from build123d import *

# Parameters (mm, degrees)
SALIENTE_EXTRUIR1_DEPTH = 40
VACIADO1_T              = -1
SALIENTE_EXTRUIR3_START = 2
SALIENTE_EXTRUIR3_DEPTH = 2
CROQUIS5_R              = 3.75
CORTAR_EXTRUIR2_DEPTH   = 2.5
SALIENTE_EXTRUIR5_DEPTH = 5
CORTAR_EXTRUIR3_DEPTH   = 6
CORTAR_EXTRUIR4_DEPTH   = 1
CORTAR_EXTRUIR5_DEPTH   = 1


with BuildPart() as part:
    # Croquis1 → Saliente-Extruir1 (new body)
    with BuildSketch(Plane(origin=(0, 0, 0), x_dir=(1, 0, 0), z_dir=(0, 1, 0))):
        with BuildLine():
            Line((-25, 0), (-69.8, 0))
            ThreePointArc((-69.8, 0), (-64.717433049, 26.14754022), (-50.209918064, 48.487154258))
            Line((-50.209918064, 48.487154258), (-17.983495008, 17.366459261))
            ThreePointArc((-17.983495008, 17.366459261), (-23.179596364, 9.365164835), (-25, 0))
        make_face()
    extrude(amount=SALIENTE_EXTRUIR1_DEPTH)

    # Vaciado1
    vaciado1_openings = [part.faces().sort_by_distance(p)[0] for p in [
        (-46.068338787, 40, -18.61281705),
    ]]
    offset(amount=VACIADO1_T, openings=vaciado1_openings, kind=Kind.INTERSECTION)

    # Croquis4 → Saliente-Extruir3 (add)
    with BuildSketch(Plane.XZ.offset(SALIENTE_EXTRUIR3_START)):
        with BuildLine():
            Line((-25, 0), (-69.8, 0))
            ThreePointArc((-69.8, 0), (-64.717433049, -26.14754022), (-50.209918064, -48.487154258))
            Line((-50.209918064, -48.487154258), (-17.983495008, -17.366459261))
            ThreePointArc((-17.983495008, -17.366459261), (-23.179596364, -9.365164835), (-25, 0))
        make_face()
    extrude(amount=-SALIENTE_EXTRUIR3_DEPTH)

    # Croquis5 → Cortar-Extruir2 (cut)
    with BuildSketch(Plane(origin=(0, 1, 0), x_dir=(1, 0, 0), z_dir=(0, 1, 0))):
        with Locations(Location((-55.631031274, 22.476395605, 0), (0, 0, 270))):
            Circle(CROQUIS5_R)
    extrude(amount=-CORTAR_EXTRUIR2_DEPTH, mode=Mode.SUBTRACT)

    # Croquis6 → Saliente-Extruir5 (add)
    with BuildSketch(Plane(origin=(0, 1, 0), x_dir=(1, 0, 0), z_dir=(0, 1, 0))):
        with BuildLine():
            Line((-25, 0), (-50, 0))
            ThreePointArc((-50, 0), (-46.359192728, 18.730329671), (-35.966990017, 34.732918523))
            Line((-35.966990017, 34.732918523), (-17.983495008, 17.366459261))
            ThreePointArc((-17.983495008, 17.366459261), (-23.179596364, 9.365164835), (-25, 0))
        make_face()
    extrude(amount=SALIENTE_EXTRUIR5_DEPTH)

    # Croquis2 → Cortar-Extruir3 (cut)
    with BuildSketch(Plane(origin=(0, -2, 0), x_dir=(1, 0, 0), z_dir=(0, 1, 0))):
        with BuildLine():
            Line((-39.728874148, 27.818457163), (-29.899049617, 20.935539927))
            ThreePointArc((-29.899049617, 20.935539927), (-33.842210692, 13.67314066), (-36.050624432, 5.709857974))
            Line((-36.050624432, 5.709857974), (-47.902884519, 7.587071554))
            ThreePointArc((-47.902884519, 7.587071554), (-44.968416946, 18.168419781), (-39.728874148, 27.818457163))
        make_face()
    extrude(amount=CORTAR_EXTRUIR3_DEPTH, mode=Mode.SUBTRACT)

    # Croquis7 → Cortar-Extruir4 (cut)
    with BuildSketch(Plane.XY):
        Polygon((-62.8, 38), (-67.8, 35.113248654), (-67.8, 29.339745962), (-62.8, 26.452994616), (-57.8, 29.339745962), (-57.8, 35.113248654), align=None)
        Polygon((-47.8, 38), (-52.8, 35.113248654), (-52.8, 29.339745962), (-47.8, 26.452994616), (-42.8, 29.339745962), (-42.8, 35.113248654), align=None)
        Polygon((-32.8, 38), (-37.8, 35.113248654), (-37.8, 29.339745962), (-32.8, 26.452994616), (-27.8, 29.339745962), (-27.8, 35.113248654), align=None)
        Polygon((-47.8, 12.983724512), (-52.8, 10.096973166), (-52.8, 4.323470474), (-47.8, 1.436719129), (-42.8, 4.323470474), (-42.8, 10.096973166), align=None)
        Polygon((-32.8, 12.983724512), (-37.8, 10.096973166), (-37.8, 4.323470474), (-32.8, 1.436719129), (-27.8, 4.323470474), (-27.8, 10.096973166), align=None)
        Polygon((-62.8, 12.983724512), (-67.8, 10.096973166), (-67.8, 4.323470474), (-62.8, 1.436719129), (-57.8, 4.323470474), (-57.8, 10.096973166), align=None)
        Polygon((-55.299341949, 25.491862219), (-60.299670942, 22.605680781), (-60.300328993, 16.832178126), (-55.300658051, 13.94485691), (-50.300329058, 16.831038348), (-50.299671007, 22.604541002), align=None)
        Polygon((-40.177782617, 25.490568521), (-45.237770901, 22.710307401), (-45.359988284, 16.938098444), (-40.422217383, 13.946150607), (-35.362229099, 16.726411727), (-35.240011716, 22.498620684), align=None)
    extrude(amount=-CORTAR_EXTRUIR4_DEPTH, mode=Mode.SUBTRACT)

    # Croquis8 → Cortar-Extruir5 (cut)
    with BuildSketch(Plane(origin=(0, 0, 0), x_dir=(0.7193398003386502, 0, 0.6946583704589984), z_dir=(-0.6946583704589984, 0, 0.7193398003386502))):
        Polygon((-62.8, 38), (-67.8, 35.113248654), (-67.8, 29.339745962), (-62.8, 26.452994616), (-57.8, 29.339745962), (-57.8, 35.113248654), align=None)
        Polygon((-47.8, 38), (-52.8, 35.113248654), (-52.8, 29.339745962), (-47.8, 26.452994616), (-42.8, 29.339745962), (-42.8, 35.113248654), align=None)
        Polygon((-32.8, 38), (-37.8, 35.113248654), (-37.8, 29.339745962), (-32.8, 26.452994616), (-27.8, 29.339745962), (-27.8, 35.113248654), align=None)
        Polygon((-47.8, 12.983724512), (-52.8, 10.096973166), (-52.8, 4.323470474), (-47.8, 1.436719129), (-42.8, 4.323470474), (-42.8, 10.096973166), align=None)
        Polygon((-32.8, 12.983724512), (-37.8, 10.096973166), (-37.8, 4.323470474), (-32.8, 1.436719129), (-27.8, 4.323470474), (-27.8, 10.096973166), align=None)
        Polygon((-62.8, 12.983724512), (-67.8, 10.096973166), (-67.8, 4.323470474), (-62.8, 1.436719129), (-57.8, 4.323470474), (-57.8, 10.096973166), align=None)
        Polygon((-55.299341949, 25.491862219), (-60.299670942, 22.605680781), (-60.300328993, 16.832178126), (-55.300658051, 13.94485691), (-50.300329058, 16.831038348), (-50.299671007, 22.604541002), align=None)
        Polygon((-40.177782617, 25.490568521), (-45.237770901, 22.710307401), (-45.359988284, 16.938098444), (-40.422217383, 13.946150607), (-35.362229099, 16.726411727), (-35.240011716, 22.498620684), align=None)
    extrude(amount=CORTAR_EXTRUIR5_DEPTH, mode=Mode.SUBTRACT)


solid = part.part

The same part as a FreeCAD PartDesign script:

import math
import FreeCAD as App
import Part
import Sketcher
Q = App.Units.Quantity


def faces_at(feature, points):
    """Names of the faces that lie closest to the given points."""
    faces = feature.Shape.Faces
    near = lambda p: min(range(len(faces)), key=lambda i: faces[i].distToShape(Part.Vertex(*p))[0])
    return sorted({f"Face{near(p) + 1}" for p in points})


def add_polygon(sketch, points):
    """Adds a closed chain of lines whose ends are joined by coincident constraints."""
    first, n = sketch.GeometryCount, len(points)
    for a, b in zip(points, points[1:] + points[:1]):
        sketch.addGeometry(Part.LineSegment(App.Vector(*a, 0), App.Vector(*b, 0)), False)
    for i in range(n):
        sketch.addConstraint(Sketcher.Constraint("Coincident", first + i, 2, first + (i + 1) % n, 1))

doc = App.newDocument("Part")
body = doc.addObject("PartDesign::Body", "Body")

# Sketch on XZ plane
sketch1 = body.newObject("Sketcher::SketchObject", "Sketch")
sketch1.AttachmentSupport = (doc.getObject("XZ_Plane"), [""])
sketch1.MapMode = "FlatFace"
sketch1.addGeometry(Part.LineSegment(App.Vector(-70, 0, 0), App.Vector(-25, 0, 0)), False)
sketch1.addGeometry(Part.ArcOfCircle(Part.Circle(App.Vector(0, 0, 0), App.Vector(0, 0, 1), 25), math.radians(-180), math.radians(-136)), False)
sketch1.addGeometry(Part.LineSegment(App.Vector(-18, -17, 0), App.Vector(-50, -48, 0)), False)
sketch1.addGeometry(Part.ArcOfCircle(Part.Circle(App.Vector(0, 0, 0), App.Vector(0, 0, 1), 70), math.radians(180), math.radians(224)), False)
sketch1.addConstraint(Sketcher.Constraint("Coincident", 0, 2, 1, 1))
sketch1.addConstraint(Sketcher.Constraint("Coincident", 1, 2, 2, 1))
sketch1.addConstraint(Sketcher.Constraint("Coincident", 2, 2, 3, 2))
sketch1.addConstraint(Sketcher.Constraint("Coincident", 3, 1, 0, 1))
sketch1.addConstraint(Sketcher.Constraint("Horizontal", 0))
sketch1.addConstraint(Sketcher.Constraint("Coincident", 1, 3, -1, 1))
sketch1.addConstraint(Sketcher.Constraint("Coincident", 3, 3, -1, 1))
sketch1.addConstraint(Sketcher.Constraint("PointOnObject", 0, 2, -1))
sketch1.addConstraint(Sketcher.Constraint("Radius", 1, 25.0))
sketch1.addConstraint(Sketcher.Constraint("Radius", 3, 69.8))
sketch1.addConstraint(Sketcher.Constraint("Angle", 2, Q("-136 deg")))
sketch1.addConstraint(Sketcher.Constraint("DistanceY", 1, 2, -1, 1, 17.366459))
pad1 = body.newObject("PartDesign::Pad", "Pad")
pad1.Profile = sketch1
pad1.Length = 40
pad1.Reversed = True
doc.recompute()

thickness = body.newObject("PartDesign::Thickness", "Thickness")
thickness.Base = (pad1, faces_at(pad1, [(-43.892, 40, -24.244)]))
thickness.Value = 1
thickness.Reversed = True
thickness.Join = "Intersection"

# Sketch on XZ plane
sketch2 = body.newObject("Sketcher::SketchObject", "Sketch001")
sketch2.AttachmentSupport = (doc.getObject("XZ_Plane"), [""])
sketch2.MapMode = "FlatFace"
sketch2.AttachmentOffset = App.Placement(App.Vector(0, 0, 2), App.Rotation())
sketch2.addGeometry(Part.LineSegment(App.Vector(-25, 0, 0), App.Vector(-70, 0, 0)), False)
sketch2.addGeometry(Part.ArcOfCircle(Part.Circle(App.Vector(0, 0, 0), App.Vector(0, 0, 1), 70), math.radians(180), math.radians(224)), False)
sketch2.addGeometry(Part.LineSegment(App.Vector(-50, -48, 0), App.Vector(-18, -17, 0)), False)
sketch2.addGeometry(Part.ArcOfCircle(Part.Circle(App.Vector(0, 0, 0), App.Vector(0, 0, 1), 25), math.radians(-180), math.radians(-136)), False)
sketch2.addConstraint(Sketcher.Constraint("Coincident", 0, 2, 1, 1))
sketch2.addConstraint(Sketcher.Constraint("Coincident", 1, 2, 2, 1))
sketch2.addConstraint(Sketcher.Constraint("Coincident", 2, 2, 3, 2))
sketch2.addConstraint(Sketcher.Constraint("Coincident", 3, 1, 0, 1))
sketch2.addConstraint(Sketcher.Constraint("Horizontal", 0))
sketch2.addConstraint(Sketcher.Constraint("Coincident", 1, 3, -1, 1))
sketch2.addConstraint(Sketcher.Constraint("Coincident", 3, 3, -1, 1))
sketch2.addConstraint(Sketcher.Constraint("PointOnObject", 0, 2, -1))
sketch2.addConstraint(Sketcher.Constraint("Radius", 3, 25.0))
sketch2.addConstraint(Sketcher.Constraint("Radius", 1, 69.8))
sketch2.addConstraint(Sketcher.Constraint("Angle", 2, Q("44 deg")))
sketch2.addConstraint(Sketcher.Constraint("DistanceX", 1, 2, -1, 1, 50.209918))
pad2 = body.newObject("PartDesign::Pad", "Pad001")
pad2.Profile = sketch2
pad2.Length = 2
pad2.Reversed = True

# Sketch on XZ plane
sketch3 = body.newObject("Sketcher::SketchObject", "Sketch002")
sketch3.AttachmentSupport = (doc.getObject("XZ_Plane"), [""])
sketch3.MapMode = "FlatFace"
sketch3.AttachmentOffset = App.Placement(App.Vector(0, 0, -1), App.Rotation())
sketch3.addGeometry(Part.Circle(App.Vector(-55.6, -22.5, 0), App.Vector(0, 0, 1), 3.8), False)
sketch3.addConstraint(Sketcher.Constraint("Diameter", 0, 7.5))
sketch3.addConstraint(Sketcher.Constraint("DistanceX", 0, 3, -1, 1, 55.631031))
sketch3.addConstraint(Sketcher.Constraint("DistanceY", 0, 3, -1, 1, 22.476396))
pocket1 = body.newObject("PartDesign::Pocket", "Pocket")
pocket1.Profile = sketch3
pocket1.Length = 2.5
pocket1.Reversed = True

# Sketch on XZ plane
sketch4 = body.newObject("Sketcher::SketchObject", "Sketch003")
sketch4.AttachmentSupport = (doc.getObject("XZ_Plane"), [""])
sketch4.MapMode = "FlatFace"
sketch4.AttachmentOffset = App.Placement(App.Vector(0, 0, -1), App.Rotation())
sketch4.addGeometry(Part.LineSegment(App.Vector(-50, 0, 0), App.Vector(-25, 0, 0)), False)
sketch4.addGeometry(Part.ArcOfCircle(Part.Circle(App.Vector(0, 0, 0), App.Vector(0, 0, 1), 25), math.radians(-180), math.radians(-136)), False)
sketch4.addGeometry(Part.LineSegment(App.Vector(-18, -17, 0), App.Vector(-36, -35, 0)), False)
sketch4.addGeometry(Part.ArcOfCircle(Part.Circle(App.Vector(0, 0, 0), App.Vector(0, 0, 1), 50), math.radians(-180), math.radians(-136)), False)
sketch4.addConstraint(Sketcher.Constraint("Coincident", 0, 2, 1, 1))
sketch4.addConstraint(Sketcher.Constraint("Coincident", 1, 2, 2, 1))
sketch4.addConstraint(Sketcher.Constraint("Coincident", 2, 2, 3, 2))
sketch4.addConstraint(Sketcher.Constraint("Coincident", 3, 1, 0, 1))
sketch4.addConstraint(Sketcher.Constraint("Horizontal", 0))
sketch4.addConstraint(Sketcher.Constraint("Coincident", 1, 3, -1, 1))
sketch4.addConstraint(Sketcher.Constraint("Coincident", 3, 3, -1, 1))
sketch4.addConstraint(Sketcher.Constraint("PointOnObject", 0, 2, -1))
sketch4.addConstraint(Sketcher.Constraint("Radius", 1, 25.0))
sketch4.addConstraint(Sketcher.Constraint("Radius", 3, 50.0))
sketch4.addConstraint(Sketcher.Constraint("Angle", 2, Q("-136 deg")))
sketch4.addConstraint(Sketcher.Constraint("DistanceY", 1, 2, -1, 1, 17.366459))
pad3 = body.newObject("PartDesign::Pad", "Pad002")
pad3.Profile = sketch4
pad3.Length = 5
pad3.Reversed = True

# Sketch on XZ plane
sketch5 = body.newObject("Sketcher::SketchObject", "Sketch004")
sketch5.AttachmentSupport = (doc.getObject("XZ_Plane"), [""])
sketch5.MapMode = "FlatFace"
sketch5.AttachmentOffset = App.Placement(App.Vector(0, 0, 2), App.Rotation())
sketch5.addGeometry(Part.LineSegment(App.Vector(-30, -21, 0), App.Vector(-40, -28, 0)), False)
sketch5.addGeometry(Part.ArcOfCircle(Part.Circle(App.Vector(0, 0, 0), App.Vector(0, 0, 1), 49), math.radians(-171), math.radians(-145)), False)
sketch5.addGeometry(Part.LineSegment(App.Vector(-48, -8, 0), App.Vector(-36, -6, 0)), False)
sketch5.addGeometry(Part.ArcOfCircle(Part.Circle(App.Vector(0, 0, 0), App.Vector(0, 0, 1), 36), math.radians(-171), math.radians(-145)), False)
sketch5.addConstraint(Sketcher.Constraint("Coincident", 0, 2, 1, 2))
sketch5.addConstraint(Sketcher.Constraint("Coincident", 1, 1, 2, 1))
sketch5.addConstraint(Sketcher.Constraint("Coincident", 2, 2, 3, 1))
sketch5.addConstraint(Sketcher.Constraint("Coincident", 3, 2, 0, 1))
sketch5.addConstraint(Sketcher.Constraint("Coincident", 1, 3, -1, 1))
sketch5.addConstraint(Sketcher.Constraint("Coincident", 3, 3, -1, 1))
sketch5.addConstraint(Sketcher.Constraint("Radius", 1, 48.5))
sketch5.addConstraint(Sketcher.Constraint("Radius", 3, 36.5))
sketch5.addConstraint(Sketcher.Constraint("Angle", 0, Q("-145 deg")))
sketch5.addConstraint(Sketcher.Constraint("Angle", 2, Q("9 deg")))
sketch5.addConstraint(Sketcher.Constraint("DistanceY", 0, 2, 2, 2, 22.108599))
sketch5.addConstraint(Sketcher.Constraint("DistanceY", 1, 1, -1, 1, 7.587072))
pocket2 = body.newObject("PartDesign::Pocket", "Pocket001")
pocket2.Profile = sketch5
pocket2.Length = 6

# Sketch on XY plane
sketch6 = body.newObject("Sketcher::SketchObject", "Sketch005")
sketch6.AttachmentSupport = (doc.getObject("XY_Plane"), [""])
sketch6.MapMode = "FlatFace"
add_polygon(sketch6, [(-63, 38), (-68, 35), (-68, 29), (-63, 26), (-58, 29), (-58, 35)])  # lines 0-5
add_polygon(sketch6, [(-48, 38), (-53, 35), (-53, 29), (-48, 26), (-43, 29), (-43, 35)])  # lines 6-11
add_polygon(sketch6, [(-33, 38), (-38, 35), (-38, 29), (-33, 26), (-28, 29), (-28, 35)])  # lines 12-17
add_polygon(sketch6, [(-48, 13), (-53, 10), (-53, 4), (-48, 1), (-43, 4), (-43, 10)])  # lines 18-23
add_polygon(sketch6, [(-33, 13), (-38, 10), (-38, 4), (-33, 1), (-28, 4), (-28, 10)])  # lines 24-29
add_polygon(sketch6, [(-63, 13), (-68, 10), (-68, 4), (-63, 1), (-58, 4), (-58, 10)])  # lines 30-35
add_polygon(sketch6, [(-55, 25), (-60, 23), (-60, 17), (-55, 14), (-50, 17), (-50, 23)])  # lines 36-41
add_polygon(sketch6, [(-40, 25), (-45, 23), (-45, 17), (-40, 14), (-35, 17), (-35, 22)])  # lines 42-47
sketch6.addConstraint(Sketcher.Constraint("Vertical", 1))
sketch6.addConstraint(Sketcher.Constraint("Vertical", 4))
sketch6.addConstraint(Sketcher.Constraint("Vertical", 7))
sketch6.addConstraint(Sketcher.Constraint("Vertical", 10))
sketch6.addConstraint(Sketcher.Constraint("Vertical", 13))
sketch6.addConstraint(Sketcher.Constraint("Vertical", 16))
sketch6.addConstraint(Sketcher.Constraint("Vertical", 19))
sketch6.addConstraint(Sketcher.Constraint("Vertical", 22))
sketch6.addConstraint(Sketcher.Constraint("Vertical", 25))
sketch6.addConstraint(Sketcher.Constraint("Vertical", 28))
sketch6.addConstraint(Sketcher.Constraint("Vertical", 31))
sketch6.addConstraint(Sketcher.Constraint("Vertical", 34))
sketch6.addConstraint(Sketcher.Constraint("Parallel", 0, 3))
sketch6.addConstraint(Sketcher.Constraint("Parallel", 2, 5))
sketch6.addConstraint(Sketcher.Constraint("Parallel", 3, 6))
sketch6.addConstraint(Sketcher.Constraint("Parallel", 5, 8))
sketch6.addConstraint(Sketcher.Constraint("Parallel", 6, 9))
sketch6.addConstraint(Sketcher.Constraint("Parallel", 8, 11))
sketch6.addConstraint(Sketcher.Constraint("Parallel", 9, 12))
sketch6.addConstraint(Sketcher.Constraint("Parallel", 11, 14))
sketch6.addConstraint(Sketcher.Constraint("Parallel", 12, 15))
sketch6.addConstraint(Sketcher.Constraint("Parallel", 14, 17))
sketch6.addConstraint(Sketcher.Constraint("Parallel", 15, 18))
sketch6.addConstraint(Sketcher.Constraint("Parallel", 17, 20))
sketch6.addConstraint(Sketcher.Constraint("Parallel", 18, 21))
sketch6.addConstraint(Sketcher.Constraint("Parallel", 20, 23))
sketch6.addConstraint(Sketcher.Constraint("Parallel", 21, 24))
sketch6.addConstraint(Sketcher.Constraint("Parallel", 23, 26))
sketch6.addConstraint(Sketcher.Constraint("Parallel", 24, 27))
sketch6.addConstraint(Sketcher.Constraint("Parallel", 26, 29))
sketch6.addConstraint(Sketcher.Constraint("Parallel", 27, 30))
sketch6.addConstraint(Sketcher.Constraint("Parallel", 29, 32))
sketch6.addConstraint(Sketcher.Constraint("Parallel", 30, 33))
sketch6.addConstraint(Sketcher.Constraint("Parallel", 32, 35))
sketch6.addConstraint(Sketcher.Constraint("Parallel", 36, 39))
sketch6.addConstraint(Sketcher.Constraint("Parallel", 37, 40))
sketch6.addConstraint(Sketcher.Constraint("Parallel", 38, 41))
sketch6.addConstraint(Sketcher.Constraint("Parallel", 42, 45))
sketch6.addConstraint(Sketcher.Constraint("Parallel", 43, 46))
sketch6.addConstraint(Sketcher.Constraint("Parallel", 44, 47))
sketch6.addConstraint(Sketcher.Constraint("Horizontal", 1, 2, 3, 2))
sketch6.addConstraint(Sketcher.Constraint("Horizontal", 0, 2, 4, 2))
sketch6.addConstraint(Sketcher.Constraint("Horizontal", 4, 2, 6, 2))
sketch6.addConstraint(Sketcher.Constraint("Horizontal", 3, 2, 7, 2))
sketch6.addConstraint(Sketcher.Constraint("Horizontal", 2, 2, 8, 2))
sketch6.addConstraint(Sketcher.Constraint("Horizontal", 7, 2, 9, 2))
sketch6.addConstraint(Sketcher.Constraint("Horizontal", 6, 2, 10, 2))
sketch6.addConstraint(Sketcher.Constraint("Horizontal", 10, 2, 12, 2))
sketch6.addConstraint(Sketcher.Constraint("Horizontal", 9, 2, 13, 2))
sketch6.addConstraint(Sketcher.Constraint("Horizontal", 8, 2, 14, 2))
sketch6.addConstraint(Sketcher.Constraint("Horizontal", 13, 2, 15, 2))
sketch6.addConstraint(Sketcher.Constraint("Horizontal", 12, 2, 16, 2))
sketch6.addConstraint(Sketcher.Constraint("Horizontal", 19, 2, 21, 2))
sketch6.addConstraint(Sketcher.Constraint("Horizontal", 18, 2, 22, 2))
sketch6.addConstraint(Sketcher.Constraint("Horizontal", 22, 2, 24, 2))
sketch6.addConstraint(Sketcher.Constraint("Horizontal", 21, 2, 25, 2))
sketch6.addConstraint(Sketcher.Constraint("Horizontal", 20, 2, 26, 2))
sketch6.addConstraint(Sketcher.Constraint("Horizontal", 25, 2, 27, 2))
sketch6.addConstraint(Sketcher.Constraint("Horizontal", 24, 2, 28, 2))
sketch6.addConstraint(Sketcher.Constraint("Horizontal", 28, 2, 30, 2))
sketch6.addConstraint(Sketcher.Constraint("Horizontal", 27, 2, 31, 2))
sketch6.addConstraint(Sketcher.Constraint("Horizontal", 26, 2, 32, 2))
sketch6.addConstraint(Sketcher.Constraint("Horizontal", 31, 2, 33, 2))
sketch6.addConstraint(Sketcher.Constraint("Horizontal", 30, 2, 34, 2))
sketch6.addConstraint(Sketcher.Constraint("Vertical", 2, 2, 5, 2))
sketch6.addConstraint(Sketcher.Constraint("Vertical", 7, 2, 18, 2))
sketch6.addConstraint(Sketcher.Constraint("Vertical", 11, 2, 20, 2))
sketch6.addConstraint(Sketcher.Constraint("Vertical", 13, 2, 24, 2))
sketch6.addConstraint(Sketcher.Constraint("Vertical", 1, 2, 30, 2))
sketch6.addConstraint(Sketcher.Constraint("Equal", 16, 19))
sketch6.addConstraint(Sketcher.Constraint("Equal", 35, 36))
sketch6.addConstraint(Sketcher.Constraint("Equal", 36, 37))
sketch6.addConstraint(Sketcher.Constraint("Equal", 37, 38))
sketch6.addConstraint(Sketcher.Constraint("Equal", 38, 39))
sketch6.addConstraint(Sketcher.Constraint("Equal", 41, 42))
sketch6.addConstraint(Sketcher.Constraint("Equal", 42, 43))
sketch6.addConstraint(Sketcher.Constraint("Equal", 43, 44))
sketch6.addConstraint(Sketcher.Constraint("Equal", 44, 45))
sketch6.addConstraint(Sketcher.Constraint("Angle", 0, Q("-150 deg")))
sketch6.addConstraint(Sketcher.Constraint("DistanceY", -1, 1, 5, 2, 38.0))
sketch6.addConstraint(Sketcher.Constraint("DistanceX", 1, 2, 2, 2, 5.0))
sketch6.addConstraint(Sketcher.Constraint("DistanceX", 4, 2, 6, 2, 5.0))
sketch6.addConstraint(Sketcher.Constraint("DistanceX", 10, 2, 12, 2, 5.0))
sketch6.addConstraint(Sketcher.Constraint("DistanceX", 37, 2, 39, 2, 10.0))
sketch6.addConstraint(Sketcher.Constraint("DistanceX", 0, 2, -1, 1, 67.8))
sketch6.addConstraint(Sketcher.Constraint("DistanceY", -1, 1, 43, 2, 16.938098))
sketch6.addConstraint(Sketcher.Constraint("DistanceX", 40, 2, 42, 2, 5.0619))
sketch6.addConstraint(Sketcher.Constraint("DistanceY", 1, 2, 1, 1, 5.773503))
sketch6.addConstraint(Sketcher.Constraint("DistanceY", -1, 1, 19, 2, 4.32347))
sketch6.addConstraint(Sketcher.Constraint("DistanceX", 36, 2, -1, 1, 60.299671))
sketch6.addConstraint(Sketcher.Constraint("DistanceY", -1, 1, 36, 2, 22.605681))
sketch6.addConstraint(Sketcher.Constraint("DistanceX", 37, 2, -1, 1, 60.300329))
sketch6.addConstraint(Sketcher.Constraint("DistanceX", 38, 2, -1, 1, 55.300658))
sketch6.addConstraint(Sketcher.Constraint("DistanceX", 43, 2, -1, 1, 45.359988))
sketch6.addConstraint(Sketcher.Constraint("DistanceY", -1, 1, 44, 2, 13.946151))
sketch6.addConstraint(Sketcher.Constraint("DistanceX", 45, 2, -1, 1, 35.362229))
pocket3 = body.newObject("PartDesign::Pocket", "Pocket002")
pocket3.Profile = sketch6
pocket3.Length = 1

# Sketch on an angled plane
sketch7 = body.newObject("Sketcher::SketchObject", "Sketch006")
sketch7.Placement = App.Placement(App.Vector(0, 0, 0), App.Rotation(App.Vector(0.7193398, 0, 0.69465837), App.Vector(0, 0.999999999, 0), App.Vector(-0.69465837, 0, 0.7193398), "ZXY"))
add_polygon(sketch7, [(-63, 38), (-68, 35), (-68, 29), (-63, 26), (-58, 29), (-58, 35)])  # lines 0-5
add_polygon(sketch7, [(-48, 38), (-53, 35), (-53, 29), (-48, 26), (-43, 29), (-43, 35)])  # lines 6-11
add_polygon(sketch7, [(-33, 38), (-38, 35), (-38, 29), (-33, 26), (-28, 29), (-28, 35)])  # lines 12-17
add_polygon(sketch7, [(-48, 13), (-53, 10), (-53, 4), (-48, 1), (-43, 4), (-43, 10)])  # lines 18-23
add_polygon(sketch7, [(-33, 13), (-38, 10), (-38, 4), (-33, 1), (-28, 4), (-28, 10)])  # lines 24-29
add_polygon(sketch7, [(-63, 13), (-68, 10), (-68, 4), (-63, 1), (-58, 4), (-58, 10)])  # lines 30-35
add_polygon(sketch7, [(-55, 25), (-60, 23), (-60, 17), (-55, 14), (-50, 17), (-50, 23)])  # lines 36-41
add_polygon(sketch7, [(-40, 25), (-45, 23), (-45, 17), (-40, 14), (-35, 17), (-35, 22)])  # lines 42-47
sketch7.addConstraint(Sketcher.Constraint("Vertical", 1))
sketch7.addConstraint(Sketcher.Constraint("Vertical", 4))
sketch7.addConstraint(Sketcher.Constraint("Vertical", 7))
sketch7.addConstraint(Sketcher.Constraint("Vertical", 10))
sketch7.addConstraint(Sketcher.Constraint("Vertical", 13))
sketch7.addConstraint(Sketcher.Constraint("Vertical", 16))
sketch7.addConstraint(Sketcher.Constraint("Vertical", 19))
sketch7.addConstraint(Sketcher.Constraint("Vertical", 22))
sketch7.addConstraint(Sketcher.Constraint("Vertical", 25))
sketch7.addConstraint(Sketcher.Constraint("Vertical", 28))
sketch7.addConstraint(Sketcher.Constraint("Vertical", 31))
sketch7.addConstraint(Sketcher.Constraint("Vertical", 34))
sketch7.addConstraint(Sketcher.Constraint("Parallel", 0, 3))
sketch7.addConstraint(Sketcher.Constraint("Parallel", 2, 5))
sketch7.addConstraint(Sketcher.Constraint("Parallel", 3, 6))
sketch7.addConstraint(Sketcher.Constraint("Parallel", 5, 8))
sketch7.addConstraint(Sketcher.Constraint("Parallel", 6, 9))
sketch7.addConstraint(Sketcher.Constraint("Parallel", 8, 11))
sketch7.addConstraint(Sketcher.Constraint("Parallel", 9, 12))
sketch7.addConstraint(Sketcher.Constraint("Parallel", 11, 14))
sketch7.addConstraint(Sketcher.Constraint("Parallel", 12, 15))
sketch7.addConstraint(Sketcher.Constraint("Parallel", 14, 17))
sketch7.addConstraint(Sketcher.Constraint("Parallel", 15, 18))
sketch7.addConstraint(Sketcher.Constraint("Parallel", 17, 20))
sketch7.addConstraint(Sketcher.Constraint("Parallel", 18, 21))
sketch7.addConstraint(Sketcher.Constraint("Parallel", 20, 23))
sketch7.addConstraint(Sketcher.Constraint("Parallel", 21, 24))
sketch7.addConstraint(Sketcher.Constraint("Parallel", 23, 26))
sketch7.addConstraint(Sketcher.Constraint("Parallel", 24, 27))
sketch7.addConstraint(Sketcher.Constraint("Parallel", 26, 29))
sketch7.addConstraint(Sketcher.Constraint("Parallel", 27, 30))
sketch7.addConstraint(Sketcher.Constraint("Parallel", 29, 32))
sketch7.addConstraint(Sketcher.Constraint("Parallel", 30, 33))
sketch7.addConstraint(Sketcher.Constraint("Parallel", 32, 35))
sketch7.addConstraint(Sketcher.Constraint("Parallel", 36, 39))
sketch7.addConstraint(Sketcher.Constraint("Parallel", 37, 40))
sketch7.addConstraint(Sketcher.Constraint("Parallel", 38, 41))
sketch7.addConstraint(Sketcher.Constraint("Parallel", 42, 45))
sketch7.addConstraint(Sketcher.Constraint("Parallel", 43, 46))
sketch7.addConstraint(Sketcher.Constraint("Parallel", 44, 47))
sketch7.addConstraint(Sketcher.Constraint("Horizontal", 1, 2, 3, 2))
sketch7.addConstraint(Sketcher.Constraint("Horizontal", 0, 2, 4, 2))
sketch7.addConstraint(Sketcher.Constraint("Horizontal", 4, 2, 6, 2))
sketch7.addConstraint(Sketcher.Constraint("Horizontal", 3, 2, 7, 2))
sketch7.addConstraint(Sketcher.Constraint("Horizontal", 2, 2, 8, 2))
sketch7.addConstraint(Sketcher.Constraint("Horizontal", 7, 2, 9, 2))
sketch7.addConstraint(Sketcher.Constraint("Horizontal", 6, 2, 10, 2))
sketch7.addConstraint(Sketcher.Constraint("Horizontal", 10, 2, 12, 2))
sketch7.addConstraint(Sketcher.Constraint("Horizontal", 9, 2, 13, 2))
sketch7.addConstraint(Sketcher.Constraint("Horizontal", 8, 2, 14, 2))
sketch7.addConstraint(Sketcher.Constraint("Horizontal", 13, 2, 15, 2))
sketch7.addConstraint(Sketcher.Constraint("Horizontal", 12, 2, 16, 2))
sketch7.addConstraint(Sketcher.Constraint("Horizontal", 19, 2, 21, 2))
sketch7.addConstraint(Sketcher.Constraint("Horizontal", 18, 2, 22, 2))
sketch7.addConstraint(Sketcher.Constraint("Horizontal", 22, 2, 24, 2))
sketch7.addConstraint(Sketcher.Constraint("Horizontal", 21, 2, 25, 2))
sketch7.addConstraint(Sketcher.Constraint("Horizontal", 20, 2, 26, 2))
sketch7.addConstraint(Sketcher.Constraint("Horizontal", 25, 2, 27, 2))
sketch7.addConstraint(Sketcher.Constraint("Horizontal", 24, 2, 28, 2))
sketch7.addConstraint(Sketcher.Constraint("Horizontal", 28, 2, 30, 2))
sketch7.addConstraint(Sketcher.Constraint("Horizontal", 27, 2, 31, 2))
sketch7.addConstraint(Sketcher.Constraint("Horizontal", 26, 2, 32, 2))
sketch7.addConstraint(Sketcher.Constraint("Horizontal", 31, 2, 33, 2))
sketch7.addConstraint(Sketcher.Constraint("Horizontal", 30, 2, 34, 2))
sketch7.addConstraint(Sketcher.Constraint("Vertical", 2, 2, 5, 2))
sketch7.addConstraint(Sketcher.Constraint("Vertical", 7, 2, 18, 2))
sketch7.addConstraint(Sketcher.Constraint("Vertical", 11, 2, 20, 2))
sketch7.addConstraint(Sketcher.Constraint("Vertical", 13, 2, 24, 2))
sketch7.addConstraint(Sketcher.Constraint("Vertical", 1, 2, 30, 2))
sketch7.addConstraint(Sketcher.Constraint("Equal", 16, 19))
sketch7.addConstraint(Sketcher.Constraint("Equal", 35, 36))
sketch7.addConstraint(Sketcher.Constraint("Equal", 36, 37))
sketch7.addConstraint(Sketcher.Constraint("Equal", 37, 38))
sketch7.addConstraint(Sketcher.Constraint("Equal", 38, 39))
sketch7.addConstraint(Sketcher.Constraint("Equal", 41, 42))
sketch7.addConstraint(Sketcher.Constraint("Equal", 42, 43))
sketch7.addConstraint(Sketcher.Constraint("Equal", 43, 44))
sketch7.addConstraint(Sketcher.Constraint("Equal", 44, 45))
sketch7.addConstraint(Sketcher.Constraint("Angle", 0, Q("-150 deg")))
sketch7.addConstraint(Sketcher.Constraint("DistanceY", -1, 1, 5, 2, 38.0))
sketch7.addConstraint(Sketcher.Constraint("DistanceX", 1, 2, 2, 2, 5.0))
sketch7.addConstraint(Sketcher.Constraint("DistanceX", 4, 2, 6, 2, 5.0))
sketch7.addConstraint(Sketcher.Constraint("DistanceX", 10, 2, 12, 2, 5.0))
sketch7.addConstraint(Sketcher.Constraint("DistanceX", 37, 2, 39, 2, 10.0))
sketch7.addConstraint(Sketcher.Constraint("DistanceX", 0, 2, -1, 1, 67.8))
sketch7.addConstraint(Sketcher.Constraint("DistanceY", -1, 1, 43, 2, 16.938098))
sketch7.addConstraint(Sketcher.Constraint("DistanceX", 40, 2, 42, 2, 5.0619))
sketch7.addConstraint(Sketcher.Constraint("DistanceY", 1, 2, 1, 1, 5.773503))
sketch7.addConstraint(Sketcher.Constraint("DistanceY", -1, 1, 19, 2, 4.32347))
sketch7.addConstraint(Sketcher.Constraint("DistanceX", 36, 2, -1, 1, 60.299671))
sketch7.addConstraint(Sketcher.Constraint("DistanceY", -1, 1, 36, 2, 22.605681))
sketch7.addConstraint(Sketcher.Constraint("DistanceX", 37, 2, -1, 1, 60.300329))
sketch7.addConstraint(Sketcher.Constraint("DistanceY", -1, 1, 39, 2, 16.831038))
sketch7.addConstraint(Sketcher.Constraint("DistanceX", 43, 2, -1, 1, 45.359988))
sketch7.addConstraint(Sketcher.Constraint("DistanceY", -1, 1, 44, 2, 13.946151))
sketch7.addConstraint(Sketcher.Constraint("DistanceX", 45, 2, -1, 1, 35.362229))
pocket4 = body.newObject("PartDesign::Pocket", "Pocket003")
pocket4.Profile = sketch7
pocket4.Length = 1
pocket4.Reversed = True

doc.recompute()
